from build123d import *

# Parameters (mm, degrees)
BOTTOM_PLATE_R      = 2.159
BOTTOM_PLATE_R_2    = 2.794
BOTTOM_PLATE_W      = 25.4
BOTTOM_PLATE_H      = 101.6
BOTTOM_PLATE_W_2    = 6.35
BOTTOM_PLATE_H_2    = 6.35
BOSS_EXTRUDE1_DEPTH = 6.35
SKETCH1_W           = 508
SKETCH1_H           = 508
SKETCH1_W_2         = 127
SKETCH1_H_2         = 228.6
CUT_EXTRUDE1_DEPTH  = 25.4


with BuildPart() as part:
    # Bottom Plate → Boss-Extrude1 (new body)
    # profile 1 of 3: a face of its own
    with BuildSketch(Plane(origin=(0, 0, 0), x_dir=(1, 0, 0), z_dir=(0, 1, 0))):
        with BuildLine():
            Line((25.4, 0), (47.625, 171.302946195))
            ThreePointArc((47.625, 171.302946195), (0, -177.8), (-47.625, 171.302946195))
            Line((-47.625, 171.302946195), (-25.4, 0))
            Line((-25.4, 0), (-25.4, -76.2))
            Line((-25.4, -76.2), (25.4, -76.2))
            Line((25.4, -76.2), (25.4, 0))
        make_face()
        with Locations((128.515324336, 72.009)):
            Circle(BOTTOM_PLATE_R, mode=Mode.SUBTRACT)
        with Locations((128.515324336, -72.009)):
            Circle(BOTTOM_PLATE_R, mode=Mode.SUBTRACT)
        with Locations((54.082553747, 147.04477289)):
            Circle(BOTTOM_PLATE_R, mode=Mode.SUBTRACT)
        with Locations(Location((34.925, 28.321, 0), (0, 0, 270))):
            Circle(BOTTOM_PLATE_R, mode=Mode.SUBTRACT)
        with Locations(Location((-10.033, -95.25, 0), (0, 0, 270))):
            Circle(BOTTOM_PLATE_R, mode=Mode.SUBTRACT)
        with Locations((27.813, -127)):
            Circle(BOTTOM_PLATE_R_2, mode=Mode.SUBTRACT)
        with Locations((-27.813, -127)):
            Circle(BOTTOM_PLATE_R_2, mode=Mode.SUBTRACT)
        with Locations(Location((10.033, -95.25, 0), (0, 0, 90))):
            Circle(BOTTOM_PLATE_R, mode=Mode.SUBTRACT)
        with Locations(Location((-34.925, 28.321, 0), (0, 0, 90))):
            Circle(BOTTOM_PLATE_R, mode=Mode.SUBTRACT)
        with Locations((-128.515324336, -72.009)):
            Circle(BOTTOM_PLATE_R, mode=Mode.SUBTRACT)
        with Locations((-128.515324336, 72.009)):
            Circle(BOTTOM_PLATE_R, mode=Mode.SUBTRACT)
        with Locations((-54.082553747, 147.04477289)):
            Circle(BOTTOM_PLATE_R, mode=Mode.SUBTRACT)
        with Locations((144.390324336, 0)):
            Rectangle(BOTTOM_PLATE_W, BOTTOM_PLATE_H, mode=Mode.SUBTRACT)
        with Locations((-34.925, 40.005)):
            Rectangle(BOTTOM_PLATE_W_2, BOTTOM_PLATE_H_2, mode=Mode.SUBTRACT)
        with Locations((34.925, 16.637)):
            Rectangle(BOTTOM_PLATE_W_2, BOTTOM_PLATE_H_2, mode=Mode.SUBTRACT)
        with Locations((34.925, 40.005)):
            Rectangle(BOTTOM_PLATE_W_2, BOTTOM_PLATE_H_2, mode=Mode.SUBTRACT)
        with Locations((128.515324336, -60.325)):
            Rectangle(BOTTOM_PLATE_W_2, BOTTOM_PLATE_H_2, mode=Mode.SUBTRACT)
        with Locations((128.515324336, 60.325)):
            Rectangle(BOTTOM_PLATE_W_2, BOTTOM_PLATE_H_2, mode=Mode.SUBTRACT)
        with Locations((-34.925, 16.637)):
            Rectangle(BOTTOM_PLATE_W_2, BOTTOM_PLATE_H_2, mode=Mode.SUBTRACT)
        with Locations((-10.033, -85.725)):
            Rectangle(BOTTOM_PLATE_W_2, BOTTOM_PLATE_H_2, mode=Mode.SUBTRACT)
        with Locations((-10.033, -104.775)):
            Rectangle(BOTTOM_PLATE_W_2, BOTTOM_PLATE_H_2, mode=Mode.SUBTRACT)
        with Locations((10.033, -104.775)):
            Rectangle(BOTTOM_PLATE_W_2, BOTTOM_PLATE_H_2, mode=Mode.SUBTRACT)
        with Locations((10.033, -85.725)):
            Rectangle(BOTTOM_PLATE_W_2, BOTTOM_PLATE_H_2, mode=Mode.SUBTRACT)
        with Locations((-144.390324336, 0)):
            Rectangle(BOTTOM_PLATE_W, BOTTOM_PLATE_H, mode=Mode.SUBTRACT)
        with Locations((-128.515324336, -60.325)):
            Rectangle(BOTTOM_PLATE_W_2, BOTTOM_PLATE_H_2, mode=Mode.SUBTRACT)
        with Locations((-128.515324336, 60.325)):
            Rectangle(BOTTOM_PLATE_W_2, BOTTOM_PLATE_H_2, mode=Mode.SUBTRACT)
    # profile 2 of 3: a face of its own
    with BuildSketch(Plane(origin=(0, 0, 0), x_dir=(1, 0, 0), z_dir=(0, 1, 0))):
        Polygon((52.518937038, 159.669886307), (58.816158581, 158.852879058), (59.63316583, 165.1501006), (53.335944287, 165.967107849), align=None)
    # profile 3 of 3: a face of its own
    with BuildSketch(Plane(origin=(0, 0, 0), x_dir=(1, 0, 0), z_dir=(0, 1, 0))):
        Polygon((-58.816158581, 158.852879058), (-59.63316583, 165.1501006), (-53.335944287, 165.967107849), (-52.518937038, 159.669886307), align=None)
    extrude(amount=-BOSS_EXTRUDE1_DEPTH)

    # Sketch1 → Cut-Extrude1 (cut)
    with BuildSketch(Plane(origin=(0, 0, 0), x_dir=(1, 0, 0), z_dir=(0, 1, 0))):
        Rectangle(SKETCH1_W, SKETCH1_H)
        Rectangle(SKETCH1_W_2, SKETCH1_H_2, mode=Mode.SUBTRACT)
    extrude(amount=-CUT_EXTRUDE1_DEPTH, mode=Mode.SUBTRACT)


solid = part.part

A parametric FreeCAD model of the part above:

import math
import FreeCAD as App
import Part
import Sketcher

V = App.Vector
Q = App.Units.Quantity


def add_polygon(sketch, points):
    """Adds a closed chain of lines whose ends are joined by coincident constraints."""
    first, n = sketch.GeometryCount, len(points)
    for a, b in zip(points, points[1:] + points[:1]):
        sketch.addGeometry(Part.LineSegment(App.Vector(*a, 0), App.Vector(*b, 0)), False)
    for i in range(n):
        sketch.addConstraint(Sketcher.Constraint("Coincident", first + i, 2, first + (i + 1) % n, 1))

doc = App.newDocument("Part")
body = doc.addObject("PartDesign::Body", "Body")

sketch1 = body.newObject("Sketcher::SketchObject", "Sketch")
sketch1.AttachmentSupport = (doc.getObject("XZ_Plane"), [""])
sketch1.MapMode = "FlatFace"
sketch1.addGeometry(Part.LineSegment(V(47.6, -171.3, 0), V(25.4, 0, 0)), False)
sketch1.addGeometry(Part.LineSegment(V(25.4, 0, 0), V(25.4, 76.2, 0)), False)
sketch1.addGeometry(Part.LineSegment(V(25.4, 76.2, 0), V(-25.4, 76.2, 0)), False)
sketch1.addGeometry(Part.LineSegment(V(-25.4, 76.2, 0), V(-25.4, 0, 0)), False)
sketch1.addGeometry(Part.LineSegment(V(-25.4, 0, 0), V(-47.6, -171.3, 0)), False)
sketch1.addGeometry(Part.ArcOfCircle(Part.Circle(V(0, 0, 0), V(0, 0, 1), 177.8), math.radians(-74), math.radians(254)), False)
sketch1.addGeometry(Part.Circle(V(128.5, 72, 0), V(0, 0, 1), 2.2), False)
add_polygon(sketch1, [(125.3, 63.5), (125.3, 57.1), (131.7, 57.1), (131.7, 63.5)])
sketch1.addGeometry(Part.Circle(V(27.8, 127, 0), V(0, 0, 1), 2.8), False)
add_polygon(sketch1, [(6.9, 108), (6.9, 101.6), (13.2, 101.6), (13.2, 108)])
sketch1.addGeometry(Part.Circle(V(10, 95.2, 0), V(0, 0, 1), 2.2), False)
add_polygon(sketch1, [(6.9, 88.9), (6.9, 82.5), (13.2, 82.5), (13.2, 88.9)])
add_polygon(sketch1, [(131.7, 50.8), (131.7, -50.8), (157.1, -50.8), (157.1, 50.8)])
add_polygon(sketch1, [(31.8, -13.5), (31.8, -19.8), (38.1, -19.8), (38.1, -13.5)])
sketch1.addGeometry(Part.Circle(V(-27.8, 127, 0), V(0, 0, 1), 2.8), False)
add_polygon(sketch1, [(-13.2, 108), (-13.2, 101.6), (-6.9, 101.6), (-6.9, 108)])
sketch1.addGeometry(Part.Circle(V(-10, 95.2, 0), V(0, 0, 1), 2.2), False)
add_polygon(sketch1, [(-13.2, 88.9), (-13.2, 82.5), (-6.9, 82.5), (-6.9, 88.9)])
sketch1.addGeometry(Part.Circle(V(-128.5, 72, 0), V(0, 0, 1), 2.2), False)
add_polygon(sketch1, [(-131.7, 63.5), (-131.7, 57.1), (-125.3, 57.1), (-125.3, 63.5)])
add_polygon(sketch1, [(-38.1, -13.5), (-38.1, -19.8), (-31.8, -19.8), (-31.8, -13.5)])
add_polygon(sketch1, [(-157.1, 50.8), (-157.1, -50.8), (-131.7, -50.8), (-131.7, 50.8)])
add_polygon(sketch1, [(125.3, -57.1), (125.3, -63.5), (131.7, -63.5), (131.7, -57.1)])
sketch1.addGeometry(Part.Circle(V(128.5, -72, 0), V(0, 0, 1), 2.2), False)
sketch1.addGeometry(Part.Circle(V(34.9, -28.3, 0), V(0, 0, 1), 2.2), False)
add_polygon(sketch1, [(31.8, -36.8), (31.8, -43.2), (38.1, -43.2), (38.1, -36.8)])
sketch1.addGeometry(Part.Circle(V(54.1, -147, 0), V(0, 0, 1), 2.2), False)
sketch1.addGeometry(Part.Circle(V(-34.9, -28.3, 0), V(0, 0, 1), 2.2), False)
add_polygon(sketch1, [(-38.1, -36.8), (-38.1, -43.2), (-31.8, -43.2), (-31.8, -36.8)])
add_polygon(sketch1, [(-131.7, -57.1), (-131.7, -63.5), (-125.3, -63.5), (-125.3, -57.1)])
sketch1.addGeometry(Part.Circle(V(-128.5, -72, 0), V(0, 0, 1), 2.2), False)
sketch1.addGeometry(Part.Circle(V(-54.1, -147, 0), V(0, 0, 1), 2.2), False)
sketch1.addConstraint(Sketcher.Constraint("Coincident", 0, 2, 1, 1))
sketch1.addConstraint(Sketcher.Constraint("Coincident", 1, 2, 2, 1))
sketch1.addConstraint(Sketcher.Constraint("Coincident", 2, 2, 3, 1))
sketch1.addConstraint(Sketcher.Constraint("Coincident", 3, 2, 4, 1))
sketch1.addConstraint(Sketcher.Constraint("Coincident", 4, 2, 5, 2))
sketch1.addConstraint(Sketcher.Constraint("Coincident", 5, 1, 0, 1))
sketch1.addConstraint(Sketcher.Constraint("Vertical", 1))
sketch1.addConstraint(Sketcher.Constraint("Horizontal", 2))
sketch1.addConstraint(Sketcher.Constraint("Vertical", 3))
sketch1.addConstraint(Sketcher.Constraint("Vertical", 7))
sketch1.addConstraint(Sketcher.Constraint("Horizontal", 8))
sketch1.addConstraint(Sketcher.Constraint("Vertical", 9))
sketch1.addConstraint(Sketcher.Constraint("Horizontal", 10))
sketch1.addConstraint(Sketcher.Constraint("Vertical", 12))
sketch1.addConstraint(Sketcher.Constraint("Horizontal", 13))
sketch1.addConstraint(Sketcher.Constraint("Vertical", 14))
sketch1.addConstraint(Sketcher.Constraint("Horizontal", 15))
sketch1.addConstraint(Sketcher.Constraint("Vertical", 17))
sketch1.addConstraint(Sketcher.Constraint("Horizontal", 18))
sketch1.addConstraint(Sketcher.Constraint("Vertical", 19))
sketch1.addConstraint(Sketcher.Constraint("Horizontal", 20))
sketch1.addConstraint(Sketcher.Constraint("Vertical", 21))
sketch1.addConstraint(Sketcher.Constraint("Horizontal", 22))
sketch1.addConstraint(Sketcher.Constraint("Vertical", 23))
sketch1.addConstraint(Sketcher.Constraint("Horizontal", 24))
sketch1.addConstraint(Sketcher.Constraint("Vertical", 25))
sketch1.addConstraint(Sketcher.Constraint("Horizontal", 26))
sketch1.addConstraint(Sketcher.Constraint("Vertical", 27))
sketch1.addConstraint(Sketcher.Constraint("Horizontal", 28))
sketch1.addConstraint(Sketcher.Constraint("Vertical", 30))
sketch1.addConstraint(Sketcher.Constraint("Horizontal", 31))
sketch1.addConstraint(Sketcher.Constraint("Vertical", 32))
sketch1.addConstraint(Sketcher.Constraint("Horizontal", 33))
sketch1.addConstraint(Sketcher.Constraint("Vertical", 35))
sketch1.addConstraint(Sketcher.Constraint("Horizontal", 36))
sketch1.addConstraint(Sketcher.Constraint("Vertical", 37))
sketch1.addConstraint(Sketcher.Constraint("Horizontal", 38))
sketch1.addConstraint(Sketcher.Constraint("Vertical", 40))
sketch1.addConstraint(Sketcher.Constraint("Horizontal", 41))
sketch1.addConstraint(Sketcher.Constraint("Vertical", 42))
sketch1.addConstraint(Sketcher.Constraint("Horizontal", 43))
sketch1.addConstraint(Sketcher.Constraint("Vertical", 44))
sketch1.addConstraint(Sketcher.Constraint("Horizontal", 45))
sketch1.addConstraint(Sketcher.Constraint("Vertical", 46))
sketch1.addConstraint(Sketcher.Constraint("Horizontal", 47))
sketch1.addConstraint(Sketcher.Constraint("Vertical", 48))
sketch1.addConstraint(Sketcher.Constraint("Horizontal", 49))
sketch1.addConstraint(Sketcher.Constraint("Vertical", 50))
sketch1.addConstraint(Sketcher.Constraint("Horizontal", 51))
sketch1.addConstraint(Sketcher.Constraint("Vertical", 52))
sketch1.addConstraint(Sketcher.Constraint("Horizontal", 53))
sketch1.addConstraint(Sketcher.Constraint("Vertical", 54))
sketch1.addConstraint(Sketcher.Constraint("Horizontal", 55))
sketch1.addConstraint(Sketcher.Constraint("Vertical", 58))
sketch1.addConstraint(Sketcher.Constraint("Horizontal", 59))
sketch1.addConstraint(Sketcher.Constraint("Vertical", 60))
sketch1.addConstraint(Sketcher.Constraint("Horizontal", 61))
sketch1.addConstraint(Sketcher.Constraint("Vertical", 64))
sketch1.addConstraint(Sketcher.Constraint("Horizontal", 65))
sketch1.addConstraint(Sketcher.Constraint("Vertical", 66))
sketch1.addConstraint(Sketcher.Constraint("Horizontal", 67))
sketch1.addConstraint(Sketcher.Constraint("Vertical", 68))
sketch1.addConstraint(Sketcher.Constraint("Horizontal", 69))
sketch1.addConstraint(Sketcher.Constraint("Vertical", 70))
sketch1.addConstraint(Sketcher.Constraint("Horizontal", 71))
sketch1.addConstraint(Sketcher.Constraint("Coincident", 5, 3, -1, 1))
sketch1.addConstraint(Sketcher.Constraint("Equal", 6, 16))
sketch1.addConstraint(Sketcher.Constraint("Equal", 11, 29))
sketch1.addConstraint(Sketcher.Constraint("Equal", 16, 34))
sketch1.addConstraint(Sketcher.Constraint("Equal", 34, 39))
sketch1.addConstraint(Sketcher.Constraint("Equal", 39, 56))
sketch1.addConstraint(Sketcher.Constraint("Equal", 56, 57))
sketch1.addConstraint(Sketcher.Constraint("Equal", 57, 62))
sketch1.addConstraint(Sketcher.Constraint("Equal", 62, 63))
sketch1.addConstraint(Sketcher.Constraint("Equal", 63, 72))
sketch1.addConstraint(Sketcher.Constraint("Equal", 72, 73))
sketch1.addConstraint(Sketcher.Constraint("Symmetric", 39, 3, 56, 3, -1, 1))
sketch1.addConstraint(Sketcher.Constraint("Symmetric", 6, 3, 72, 3, -1, 1))
sketch1.addConstraint(Sketcher.Constraint("Symmetric", 0, 2, 3, 2, -1, 1))
sketch1.addConstraint(Sketcher.Constraint("Symmetric", 23, 2, 48, 2, -1, 1))
sketch1.addConstraint(Sketcher.Constraint("Symmetric", 21, 2, 50, 2, -1, 1))
sketch1.addConstraint(Sketcher.Constraint("Symmetric", 42, 2, 52, 2, -1, 1))
sketch1.addConstraint(Sketcher.Constraint("Symmetric", 40, 2, 54, 2, -1, 1))
sketch1.addConstraint(Sketcher.Constraint("Symmetric", 9, 2, 68, 2, -1, 1))
sketch1.addConstraint(Sketcher.Constraint("Symmetric", 7, 2, 70, 2, -1, 1))
sketch1.addConstraint(Sketcher.Constraint("Symmetric", 11, 3, 29, 3, -2))
sketch1.addConstraint(Sketcher.Constraint("Symmetric", 16, 3, 34, 3, -2))
sketch1.addConstraint(Sketcher.Constraint("Symmetric", 6, 3, 39, 3, -2))
sketch1.addConstraint(Sketcher.Constraint("Symmetric", 57, 3, 63, 3, -2))
sketch1.addConstraint(Sketcher.Constraint("Symmetric", 62, 3, 73, 3, -2))
sketch1.addConstraint(Sketcher.Constraint("Symmetric", 13, 2, 30, 2, -2))
sketch1.addConstraint(Sketcher.Constraint("Symmetric", 15, 2, 32, 2, -2))
sketch1.addConstraint(Sketcher.Constraint("Symmetric", 18, 2, 35, 2, -2))
sketch1.addConstraint(Sketcher.Constraint("Symmetric", 20, 2, 37, 2, -2))
sketch1.addConstraint(Sketcher.Constraint("Symmetric", 8, 2, 40, 2, -2))
sketch1.addConstraint(Sketcher.Constraint("Symmetric", 10, 2, 42, 2, -2))
sketch1.addConstraint(Sketcher.Constraint("Symmetric", 26, 2, 44, 2, -2))
sketch1.addConstraint(Sketcher.Constraint("Symmetric", 28, 2, 46, 2, -2))
sketch1.addConstraint(Sketcher.Constraint("Symmetric", 59, 2, 64, 2, -2))
sketch1.addConstraint(Sketcher.Constraint("Symmetric", 61, 2, 66, 2, -2))
sketch1.addConstraint(Sketcher.Constraint("PointOnObject", 0, 2, -1))
sketch1.addConstraint(Sketcher.Constraint("Horizontal", 4, 2, 5, 1))
sketch1.addConstraint(Sketcher.Constraint("Horizontal", 22, 2, 48, 2))
sketch1.addConstraint(Sketcher.Constraint("Vertical", 15, 2, 17, 2))
sketch1.addConstraint(Sketcher.Constraint("Vertical", 14, 2, 18, 2))
sketch1.addConstraint(Sketcher.Constraint("Vertical", 9, 2, 21, 2))
sketch1.addConstraint(Sketcher.Constraint("Vertical", 28, 2, 58, 2))
sketch1.addConstraint(Sketcher.Constraint("Vertical", 27, 2, 59, 2))
sketch1.addConstraint(Sketcher.Constraint("Equal", 10, 13))
sketch1.addConstraint(Sketcher.Constraint("Equal", 20, 26))
sketch1.addConstraint(Sketcher.Constraint("Equal", 71, 7))
sketch1.addConstraint(Sketcher.Constraint("Equal", 9, 12))
sketch1.addConstraint(Sketcher.Constraint("Equal", 14, 17))
sketch1.addConstraint(Sketcher.Constraint("Equal", 19, 25))
sketch1.addConstraint(Sketcher.Constraint("Equal", 54, 58))
sketch1.addConstraint(Sketcher.Constraint("Radius", 5, Q("7 in")))
sketch1.addConstraint(Sketcher.Constraint("Diameter", 6, Q("0.17 in")))
sketch1.addConstraint(Sketcher.Constraint("Diameter", 11, Q("0.22 in")))
sketch1.addConstraint(Sketcher.Constraint("DistanceX", 2, 2, 2, 1, Q("2 in")))
sketch1.addConstraint(Sketcher.Constraint("DistanceX", 22, 1, 22, 2, Q("1 in")))
sketch1.addConstraint(Sketcher.Constraint("DistanceY", 1, 1, 1, 2, Q("3 in")))
sketch1.addConstraint(Sketcher.Constraint("DistanceY", 21, 2, 21, 1, Q("4 in")))
sketch1.addConstraint(Sketcher.Constraint("DistanceY", -1, 1, 11, 3, Q("5 in")))
sketch1.addConstraint(Sketcher.Constraint("DistanceY", -1, 1, 12, 2, Q("4 in")))
sketch1.addConstraint(Sketcher.Constraint("DistanceX", 8, 1, 8, 2, Q("0.25 in")))
sketch1.addConstraint(Sketcher.Constraint("DistanceY", -1, 1, 9, 2, Q("2.5 in")))
sketch1.addConstraint(Sketcher.Constraint("DistanceY", -1, 1, 19, 2, Q("3.5 in")))
sketch1.addConstraint(Sketcher.Constraint("DistanceX", -1, 1, 26, 2, Q("1.5 in")))
sketch1.addConstraint(Sketcher.Constraint("DistanceY", 58, 2, -1, 1, Q("1.7 in")))
sketch1.addConstraint(Sketcher.Constraint("DistanceY", -1, 1, 16, 3, Q("3.75 in")))
sketch1.addConstraint(Sketcher.Constraint("DistanceX", -1, 1, 12, 2, Q("0.27 in")))
sketch1.addConstraint(Sketcher.Constraint("DistanceY", 25, 2, -1, 1, Q("0.78 in")))
sketch1.addConstraint(Sketcher.Constraint("DistanceY", -1, 1, 6, 3, Q("2.835 in")))
sketch1.addConstraint(Sketcher.Constraint("DistanceX", -1, 1, 11, 3, Q("1.095 in")))
sketch1.addConstraint(Sketcher.Constraint("DistanceX", -1, 1, 16, 3, Q("0.395 in")))
sketch1.addConstraint(Sketcher.Constraint("DistanceX", -1, 1, 57, 3, Q("1.375 in")))
sketch1.addConstraint(Sketcher.Constraint("DistanceY", 57, 3, -1, 1, Q("1.115 in")))
sketch1.addConstraint(Sketcher.Constraint("DistanceX", 4, 2, -1, 1, Q("1.875 in")))
sketch1.addConstraint(Sketcher.Constraint("DistanceX", -1, 1, 6, 3, Q("128.515324 mm")))
sketch1.addConstraint(Sketcher.Constraint("DistanceX", -1, 1, 62, 3, Q("54.082554 mm")))
sketch1.addConstraint(Sketcher.Constraint("DistanceY", 62, 3, -1, 1, Q("147.044773 mm")))
sketch1.addConstraint(Sketcher.Constraint("DistanceX", -1, 1, 7, 2, Q("125.340324 mm")))
pad1 = body.newObject("PartDesign::Pad", "Pad")
pad1.Profile = sketch1
pad1.Length = Q("0.25 in")

sketch2 = body.newObject("Sketcher::SketchObject", "Sketch001")
sketch2.AttachmentSupport = (doc.getObject("XZ_Plane"), [""])
sketch2.MapMode = "FlatFace"
add_polygon(sketch2, [(-254, -254), (-254, 254), (254, 254), (254, -254)])
add_polygon(sketch2, [(64, 114), (-64, 114), (-64, -114), (64, -114)])
sketch2.addConstraint(Sketcher.Constraint("Vertical", 0))
sketch2.addConstraint(Sketcher.Constraint("Horizontal", 1))
sketch2.addConstraint(Sketcher.Constraint("Vertical", 2))
sketch2.addConstraint(Sketcher.Constraint("Horizontal", 3))
sketch2.addConstraint(Sketcher.Constraint("Horizontal", 4))
sketch2.addConstraint(Sketcher.Constraint("Vertical", 5))
sketch2.addConstraint(Sketcher.Constraint("Horizontal", 6))
sketch2.addConstraint(Sketcher.Constraint("Vertical", 7))
sketch2.addConstraint(Sketcher.Constraint("Symmetric", 0, 2, 2, 2, -1, 1))
sketch2.addConstraint(Sketcher.Constraint("Symmetric", 4, 2, 6, 2, -1, 1))
sketch2.addConstraint(Sketcher.Constraint("Equal", 3, 0))
sketch2.addConstraint(Sketcher.Constraint("DistanceX", 1, 1, 1, 2, Q("20 in")))
sketch2.addConstraint(Sketcher.Constraint("DistanceX", 4, 2, 4, 1, Q("5 in")))
sketch2.addConstraint(Sketcher.Constraint("DistanceY", 5, 2, 5, 1, Q("9 in")))
pocket1 = body.newObject("PartDesign::Pocket", "Pocket")
pocket1.Profile = sketch2
pocket1.Length = Q("1 in")
pocket1.Reversed = True

doc.recompute()
